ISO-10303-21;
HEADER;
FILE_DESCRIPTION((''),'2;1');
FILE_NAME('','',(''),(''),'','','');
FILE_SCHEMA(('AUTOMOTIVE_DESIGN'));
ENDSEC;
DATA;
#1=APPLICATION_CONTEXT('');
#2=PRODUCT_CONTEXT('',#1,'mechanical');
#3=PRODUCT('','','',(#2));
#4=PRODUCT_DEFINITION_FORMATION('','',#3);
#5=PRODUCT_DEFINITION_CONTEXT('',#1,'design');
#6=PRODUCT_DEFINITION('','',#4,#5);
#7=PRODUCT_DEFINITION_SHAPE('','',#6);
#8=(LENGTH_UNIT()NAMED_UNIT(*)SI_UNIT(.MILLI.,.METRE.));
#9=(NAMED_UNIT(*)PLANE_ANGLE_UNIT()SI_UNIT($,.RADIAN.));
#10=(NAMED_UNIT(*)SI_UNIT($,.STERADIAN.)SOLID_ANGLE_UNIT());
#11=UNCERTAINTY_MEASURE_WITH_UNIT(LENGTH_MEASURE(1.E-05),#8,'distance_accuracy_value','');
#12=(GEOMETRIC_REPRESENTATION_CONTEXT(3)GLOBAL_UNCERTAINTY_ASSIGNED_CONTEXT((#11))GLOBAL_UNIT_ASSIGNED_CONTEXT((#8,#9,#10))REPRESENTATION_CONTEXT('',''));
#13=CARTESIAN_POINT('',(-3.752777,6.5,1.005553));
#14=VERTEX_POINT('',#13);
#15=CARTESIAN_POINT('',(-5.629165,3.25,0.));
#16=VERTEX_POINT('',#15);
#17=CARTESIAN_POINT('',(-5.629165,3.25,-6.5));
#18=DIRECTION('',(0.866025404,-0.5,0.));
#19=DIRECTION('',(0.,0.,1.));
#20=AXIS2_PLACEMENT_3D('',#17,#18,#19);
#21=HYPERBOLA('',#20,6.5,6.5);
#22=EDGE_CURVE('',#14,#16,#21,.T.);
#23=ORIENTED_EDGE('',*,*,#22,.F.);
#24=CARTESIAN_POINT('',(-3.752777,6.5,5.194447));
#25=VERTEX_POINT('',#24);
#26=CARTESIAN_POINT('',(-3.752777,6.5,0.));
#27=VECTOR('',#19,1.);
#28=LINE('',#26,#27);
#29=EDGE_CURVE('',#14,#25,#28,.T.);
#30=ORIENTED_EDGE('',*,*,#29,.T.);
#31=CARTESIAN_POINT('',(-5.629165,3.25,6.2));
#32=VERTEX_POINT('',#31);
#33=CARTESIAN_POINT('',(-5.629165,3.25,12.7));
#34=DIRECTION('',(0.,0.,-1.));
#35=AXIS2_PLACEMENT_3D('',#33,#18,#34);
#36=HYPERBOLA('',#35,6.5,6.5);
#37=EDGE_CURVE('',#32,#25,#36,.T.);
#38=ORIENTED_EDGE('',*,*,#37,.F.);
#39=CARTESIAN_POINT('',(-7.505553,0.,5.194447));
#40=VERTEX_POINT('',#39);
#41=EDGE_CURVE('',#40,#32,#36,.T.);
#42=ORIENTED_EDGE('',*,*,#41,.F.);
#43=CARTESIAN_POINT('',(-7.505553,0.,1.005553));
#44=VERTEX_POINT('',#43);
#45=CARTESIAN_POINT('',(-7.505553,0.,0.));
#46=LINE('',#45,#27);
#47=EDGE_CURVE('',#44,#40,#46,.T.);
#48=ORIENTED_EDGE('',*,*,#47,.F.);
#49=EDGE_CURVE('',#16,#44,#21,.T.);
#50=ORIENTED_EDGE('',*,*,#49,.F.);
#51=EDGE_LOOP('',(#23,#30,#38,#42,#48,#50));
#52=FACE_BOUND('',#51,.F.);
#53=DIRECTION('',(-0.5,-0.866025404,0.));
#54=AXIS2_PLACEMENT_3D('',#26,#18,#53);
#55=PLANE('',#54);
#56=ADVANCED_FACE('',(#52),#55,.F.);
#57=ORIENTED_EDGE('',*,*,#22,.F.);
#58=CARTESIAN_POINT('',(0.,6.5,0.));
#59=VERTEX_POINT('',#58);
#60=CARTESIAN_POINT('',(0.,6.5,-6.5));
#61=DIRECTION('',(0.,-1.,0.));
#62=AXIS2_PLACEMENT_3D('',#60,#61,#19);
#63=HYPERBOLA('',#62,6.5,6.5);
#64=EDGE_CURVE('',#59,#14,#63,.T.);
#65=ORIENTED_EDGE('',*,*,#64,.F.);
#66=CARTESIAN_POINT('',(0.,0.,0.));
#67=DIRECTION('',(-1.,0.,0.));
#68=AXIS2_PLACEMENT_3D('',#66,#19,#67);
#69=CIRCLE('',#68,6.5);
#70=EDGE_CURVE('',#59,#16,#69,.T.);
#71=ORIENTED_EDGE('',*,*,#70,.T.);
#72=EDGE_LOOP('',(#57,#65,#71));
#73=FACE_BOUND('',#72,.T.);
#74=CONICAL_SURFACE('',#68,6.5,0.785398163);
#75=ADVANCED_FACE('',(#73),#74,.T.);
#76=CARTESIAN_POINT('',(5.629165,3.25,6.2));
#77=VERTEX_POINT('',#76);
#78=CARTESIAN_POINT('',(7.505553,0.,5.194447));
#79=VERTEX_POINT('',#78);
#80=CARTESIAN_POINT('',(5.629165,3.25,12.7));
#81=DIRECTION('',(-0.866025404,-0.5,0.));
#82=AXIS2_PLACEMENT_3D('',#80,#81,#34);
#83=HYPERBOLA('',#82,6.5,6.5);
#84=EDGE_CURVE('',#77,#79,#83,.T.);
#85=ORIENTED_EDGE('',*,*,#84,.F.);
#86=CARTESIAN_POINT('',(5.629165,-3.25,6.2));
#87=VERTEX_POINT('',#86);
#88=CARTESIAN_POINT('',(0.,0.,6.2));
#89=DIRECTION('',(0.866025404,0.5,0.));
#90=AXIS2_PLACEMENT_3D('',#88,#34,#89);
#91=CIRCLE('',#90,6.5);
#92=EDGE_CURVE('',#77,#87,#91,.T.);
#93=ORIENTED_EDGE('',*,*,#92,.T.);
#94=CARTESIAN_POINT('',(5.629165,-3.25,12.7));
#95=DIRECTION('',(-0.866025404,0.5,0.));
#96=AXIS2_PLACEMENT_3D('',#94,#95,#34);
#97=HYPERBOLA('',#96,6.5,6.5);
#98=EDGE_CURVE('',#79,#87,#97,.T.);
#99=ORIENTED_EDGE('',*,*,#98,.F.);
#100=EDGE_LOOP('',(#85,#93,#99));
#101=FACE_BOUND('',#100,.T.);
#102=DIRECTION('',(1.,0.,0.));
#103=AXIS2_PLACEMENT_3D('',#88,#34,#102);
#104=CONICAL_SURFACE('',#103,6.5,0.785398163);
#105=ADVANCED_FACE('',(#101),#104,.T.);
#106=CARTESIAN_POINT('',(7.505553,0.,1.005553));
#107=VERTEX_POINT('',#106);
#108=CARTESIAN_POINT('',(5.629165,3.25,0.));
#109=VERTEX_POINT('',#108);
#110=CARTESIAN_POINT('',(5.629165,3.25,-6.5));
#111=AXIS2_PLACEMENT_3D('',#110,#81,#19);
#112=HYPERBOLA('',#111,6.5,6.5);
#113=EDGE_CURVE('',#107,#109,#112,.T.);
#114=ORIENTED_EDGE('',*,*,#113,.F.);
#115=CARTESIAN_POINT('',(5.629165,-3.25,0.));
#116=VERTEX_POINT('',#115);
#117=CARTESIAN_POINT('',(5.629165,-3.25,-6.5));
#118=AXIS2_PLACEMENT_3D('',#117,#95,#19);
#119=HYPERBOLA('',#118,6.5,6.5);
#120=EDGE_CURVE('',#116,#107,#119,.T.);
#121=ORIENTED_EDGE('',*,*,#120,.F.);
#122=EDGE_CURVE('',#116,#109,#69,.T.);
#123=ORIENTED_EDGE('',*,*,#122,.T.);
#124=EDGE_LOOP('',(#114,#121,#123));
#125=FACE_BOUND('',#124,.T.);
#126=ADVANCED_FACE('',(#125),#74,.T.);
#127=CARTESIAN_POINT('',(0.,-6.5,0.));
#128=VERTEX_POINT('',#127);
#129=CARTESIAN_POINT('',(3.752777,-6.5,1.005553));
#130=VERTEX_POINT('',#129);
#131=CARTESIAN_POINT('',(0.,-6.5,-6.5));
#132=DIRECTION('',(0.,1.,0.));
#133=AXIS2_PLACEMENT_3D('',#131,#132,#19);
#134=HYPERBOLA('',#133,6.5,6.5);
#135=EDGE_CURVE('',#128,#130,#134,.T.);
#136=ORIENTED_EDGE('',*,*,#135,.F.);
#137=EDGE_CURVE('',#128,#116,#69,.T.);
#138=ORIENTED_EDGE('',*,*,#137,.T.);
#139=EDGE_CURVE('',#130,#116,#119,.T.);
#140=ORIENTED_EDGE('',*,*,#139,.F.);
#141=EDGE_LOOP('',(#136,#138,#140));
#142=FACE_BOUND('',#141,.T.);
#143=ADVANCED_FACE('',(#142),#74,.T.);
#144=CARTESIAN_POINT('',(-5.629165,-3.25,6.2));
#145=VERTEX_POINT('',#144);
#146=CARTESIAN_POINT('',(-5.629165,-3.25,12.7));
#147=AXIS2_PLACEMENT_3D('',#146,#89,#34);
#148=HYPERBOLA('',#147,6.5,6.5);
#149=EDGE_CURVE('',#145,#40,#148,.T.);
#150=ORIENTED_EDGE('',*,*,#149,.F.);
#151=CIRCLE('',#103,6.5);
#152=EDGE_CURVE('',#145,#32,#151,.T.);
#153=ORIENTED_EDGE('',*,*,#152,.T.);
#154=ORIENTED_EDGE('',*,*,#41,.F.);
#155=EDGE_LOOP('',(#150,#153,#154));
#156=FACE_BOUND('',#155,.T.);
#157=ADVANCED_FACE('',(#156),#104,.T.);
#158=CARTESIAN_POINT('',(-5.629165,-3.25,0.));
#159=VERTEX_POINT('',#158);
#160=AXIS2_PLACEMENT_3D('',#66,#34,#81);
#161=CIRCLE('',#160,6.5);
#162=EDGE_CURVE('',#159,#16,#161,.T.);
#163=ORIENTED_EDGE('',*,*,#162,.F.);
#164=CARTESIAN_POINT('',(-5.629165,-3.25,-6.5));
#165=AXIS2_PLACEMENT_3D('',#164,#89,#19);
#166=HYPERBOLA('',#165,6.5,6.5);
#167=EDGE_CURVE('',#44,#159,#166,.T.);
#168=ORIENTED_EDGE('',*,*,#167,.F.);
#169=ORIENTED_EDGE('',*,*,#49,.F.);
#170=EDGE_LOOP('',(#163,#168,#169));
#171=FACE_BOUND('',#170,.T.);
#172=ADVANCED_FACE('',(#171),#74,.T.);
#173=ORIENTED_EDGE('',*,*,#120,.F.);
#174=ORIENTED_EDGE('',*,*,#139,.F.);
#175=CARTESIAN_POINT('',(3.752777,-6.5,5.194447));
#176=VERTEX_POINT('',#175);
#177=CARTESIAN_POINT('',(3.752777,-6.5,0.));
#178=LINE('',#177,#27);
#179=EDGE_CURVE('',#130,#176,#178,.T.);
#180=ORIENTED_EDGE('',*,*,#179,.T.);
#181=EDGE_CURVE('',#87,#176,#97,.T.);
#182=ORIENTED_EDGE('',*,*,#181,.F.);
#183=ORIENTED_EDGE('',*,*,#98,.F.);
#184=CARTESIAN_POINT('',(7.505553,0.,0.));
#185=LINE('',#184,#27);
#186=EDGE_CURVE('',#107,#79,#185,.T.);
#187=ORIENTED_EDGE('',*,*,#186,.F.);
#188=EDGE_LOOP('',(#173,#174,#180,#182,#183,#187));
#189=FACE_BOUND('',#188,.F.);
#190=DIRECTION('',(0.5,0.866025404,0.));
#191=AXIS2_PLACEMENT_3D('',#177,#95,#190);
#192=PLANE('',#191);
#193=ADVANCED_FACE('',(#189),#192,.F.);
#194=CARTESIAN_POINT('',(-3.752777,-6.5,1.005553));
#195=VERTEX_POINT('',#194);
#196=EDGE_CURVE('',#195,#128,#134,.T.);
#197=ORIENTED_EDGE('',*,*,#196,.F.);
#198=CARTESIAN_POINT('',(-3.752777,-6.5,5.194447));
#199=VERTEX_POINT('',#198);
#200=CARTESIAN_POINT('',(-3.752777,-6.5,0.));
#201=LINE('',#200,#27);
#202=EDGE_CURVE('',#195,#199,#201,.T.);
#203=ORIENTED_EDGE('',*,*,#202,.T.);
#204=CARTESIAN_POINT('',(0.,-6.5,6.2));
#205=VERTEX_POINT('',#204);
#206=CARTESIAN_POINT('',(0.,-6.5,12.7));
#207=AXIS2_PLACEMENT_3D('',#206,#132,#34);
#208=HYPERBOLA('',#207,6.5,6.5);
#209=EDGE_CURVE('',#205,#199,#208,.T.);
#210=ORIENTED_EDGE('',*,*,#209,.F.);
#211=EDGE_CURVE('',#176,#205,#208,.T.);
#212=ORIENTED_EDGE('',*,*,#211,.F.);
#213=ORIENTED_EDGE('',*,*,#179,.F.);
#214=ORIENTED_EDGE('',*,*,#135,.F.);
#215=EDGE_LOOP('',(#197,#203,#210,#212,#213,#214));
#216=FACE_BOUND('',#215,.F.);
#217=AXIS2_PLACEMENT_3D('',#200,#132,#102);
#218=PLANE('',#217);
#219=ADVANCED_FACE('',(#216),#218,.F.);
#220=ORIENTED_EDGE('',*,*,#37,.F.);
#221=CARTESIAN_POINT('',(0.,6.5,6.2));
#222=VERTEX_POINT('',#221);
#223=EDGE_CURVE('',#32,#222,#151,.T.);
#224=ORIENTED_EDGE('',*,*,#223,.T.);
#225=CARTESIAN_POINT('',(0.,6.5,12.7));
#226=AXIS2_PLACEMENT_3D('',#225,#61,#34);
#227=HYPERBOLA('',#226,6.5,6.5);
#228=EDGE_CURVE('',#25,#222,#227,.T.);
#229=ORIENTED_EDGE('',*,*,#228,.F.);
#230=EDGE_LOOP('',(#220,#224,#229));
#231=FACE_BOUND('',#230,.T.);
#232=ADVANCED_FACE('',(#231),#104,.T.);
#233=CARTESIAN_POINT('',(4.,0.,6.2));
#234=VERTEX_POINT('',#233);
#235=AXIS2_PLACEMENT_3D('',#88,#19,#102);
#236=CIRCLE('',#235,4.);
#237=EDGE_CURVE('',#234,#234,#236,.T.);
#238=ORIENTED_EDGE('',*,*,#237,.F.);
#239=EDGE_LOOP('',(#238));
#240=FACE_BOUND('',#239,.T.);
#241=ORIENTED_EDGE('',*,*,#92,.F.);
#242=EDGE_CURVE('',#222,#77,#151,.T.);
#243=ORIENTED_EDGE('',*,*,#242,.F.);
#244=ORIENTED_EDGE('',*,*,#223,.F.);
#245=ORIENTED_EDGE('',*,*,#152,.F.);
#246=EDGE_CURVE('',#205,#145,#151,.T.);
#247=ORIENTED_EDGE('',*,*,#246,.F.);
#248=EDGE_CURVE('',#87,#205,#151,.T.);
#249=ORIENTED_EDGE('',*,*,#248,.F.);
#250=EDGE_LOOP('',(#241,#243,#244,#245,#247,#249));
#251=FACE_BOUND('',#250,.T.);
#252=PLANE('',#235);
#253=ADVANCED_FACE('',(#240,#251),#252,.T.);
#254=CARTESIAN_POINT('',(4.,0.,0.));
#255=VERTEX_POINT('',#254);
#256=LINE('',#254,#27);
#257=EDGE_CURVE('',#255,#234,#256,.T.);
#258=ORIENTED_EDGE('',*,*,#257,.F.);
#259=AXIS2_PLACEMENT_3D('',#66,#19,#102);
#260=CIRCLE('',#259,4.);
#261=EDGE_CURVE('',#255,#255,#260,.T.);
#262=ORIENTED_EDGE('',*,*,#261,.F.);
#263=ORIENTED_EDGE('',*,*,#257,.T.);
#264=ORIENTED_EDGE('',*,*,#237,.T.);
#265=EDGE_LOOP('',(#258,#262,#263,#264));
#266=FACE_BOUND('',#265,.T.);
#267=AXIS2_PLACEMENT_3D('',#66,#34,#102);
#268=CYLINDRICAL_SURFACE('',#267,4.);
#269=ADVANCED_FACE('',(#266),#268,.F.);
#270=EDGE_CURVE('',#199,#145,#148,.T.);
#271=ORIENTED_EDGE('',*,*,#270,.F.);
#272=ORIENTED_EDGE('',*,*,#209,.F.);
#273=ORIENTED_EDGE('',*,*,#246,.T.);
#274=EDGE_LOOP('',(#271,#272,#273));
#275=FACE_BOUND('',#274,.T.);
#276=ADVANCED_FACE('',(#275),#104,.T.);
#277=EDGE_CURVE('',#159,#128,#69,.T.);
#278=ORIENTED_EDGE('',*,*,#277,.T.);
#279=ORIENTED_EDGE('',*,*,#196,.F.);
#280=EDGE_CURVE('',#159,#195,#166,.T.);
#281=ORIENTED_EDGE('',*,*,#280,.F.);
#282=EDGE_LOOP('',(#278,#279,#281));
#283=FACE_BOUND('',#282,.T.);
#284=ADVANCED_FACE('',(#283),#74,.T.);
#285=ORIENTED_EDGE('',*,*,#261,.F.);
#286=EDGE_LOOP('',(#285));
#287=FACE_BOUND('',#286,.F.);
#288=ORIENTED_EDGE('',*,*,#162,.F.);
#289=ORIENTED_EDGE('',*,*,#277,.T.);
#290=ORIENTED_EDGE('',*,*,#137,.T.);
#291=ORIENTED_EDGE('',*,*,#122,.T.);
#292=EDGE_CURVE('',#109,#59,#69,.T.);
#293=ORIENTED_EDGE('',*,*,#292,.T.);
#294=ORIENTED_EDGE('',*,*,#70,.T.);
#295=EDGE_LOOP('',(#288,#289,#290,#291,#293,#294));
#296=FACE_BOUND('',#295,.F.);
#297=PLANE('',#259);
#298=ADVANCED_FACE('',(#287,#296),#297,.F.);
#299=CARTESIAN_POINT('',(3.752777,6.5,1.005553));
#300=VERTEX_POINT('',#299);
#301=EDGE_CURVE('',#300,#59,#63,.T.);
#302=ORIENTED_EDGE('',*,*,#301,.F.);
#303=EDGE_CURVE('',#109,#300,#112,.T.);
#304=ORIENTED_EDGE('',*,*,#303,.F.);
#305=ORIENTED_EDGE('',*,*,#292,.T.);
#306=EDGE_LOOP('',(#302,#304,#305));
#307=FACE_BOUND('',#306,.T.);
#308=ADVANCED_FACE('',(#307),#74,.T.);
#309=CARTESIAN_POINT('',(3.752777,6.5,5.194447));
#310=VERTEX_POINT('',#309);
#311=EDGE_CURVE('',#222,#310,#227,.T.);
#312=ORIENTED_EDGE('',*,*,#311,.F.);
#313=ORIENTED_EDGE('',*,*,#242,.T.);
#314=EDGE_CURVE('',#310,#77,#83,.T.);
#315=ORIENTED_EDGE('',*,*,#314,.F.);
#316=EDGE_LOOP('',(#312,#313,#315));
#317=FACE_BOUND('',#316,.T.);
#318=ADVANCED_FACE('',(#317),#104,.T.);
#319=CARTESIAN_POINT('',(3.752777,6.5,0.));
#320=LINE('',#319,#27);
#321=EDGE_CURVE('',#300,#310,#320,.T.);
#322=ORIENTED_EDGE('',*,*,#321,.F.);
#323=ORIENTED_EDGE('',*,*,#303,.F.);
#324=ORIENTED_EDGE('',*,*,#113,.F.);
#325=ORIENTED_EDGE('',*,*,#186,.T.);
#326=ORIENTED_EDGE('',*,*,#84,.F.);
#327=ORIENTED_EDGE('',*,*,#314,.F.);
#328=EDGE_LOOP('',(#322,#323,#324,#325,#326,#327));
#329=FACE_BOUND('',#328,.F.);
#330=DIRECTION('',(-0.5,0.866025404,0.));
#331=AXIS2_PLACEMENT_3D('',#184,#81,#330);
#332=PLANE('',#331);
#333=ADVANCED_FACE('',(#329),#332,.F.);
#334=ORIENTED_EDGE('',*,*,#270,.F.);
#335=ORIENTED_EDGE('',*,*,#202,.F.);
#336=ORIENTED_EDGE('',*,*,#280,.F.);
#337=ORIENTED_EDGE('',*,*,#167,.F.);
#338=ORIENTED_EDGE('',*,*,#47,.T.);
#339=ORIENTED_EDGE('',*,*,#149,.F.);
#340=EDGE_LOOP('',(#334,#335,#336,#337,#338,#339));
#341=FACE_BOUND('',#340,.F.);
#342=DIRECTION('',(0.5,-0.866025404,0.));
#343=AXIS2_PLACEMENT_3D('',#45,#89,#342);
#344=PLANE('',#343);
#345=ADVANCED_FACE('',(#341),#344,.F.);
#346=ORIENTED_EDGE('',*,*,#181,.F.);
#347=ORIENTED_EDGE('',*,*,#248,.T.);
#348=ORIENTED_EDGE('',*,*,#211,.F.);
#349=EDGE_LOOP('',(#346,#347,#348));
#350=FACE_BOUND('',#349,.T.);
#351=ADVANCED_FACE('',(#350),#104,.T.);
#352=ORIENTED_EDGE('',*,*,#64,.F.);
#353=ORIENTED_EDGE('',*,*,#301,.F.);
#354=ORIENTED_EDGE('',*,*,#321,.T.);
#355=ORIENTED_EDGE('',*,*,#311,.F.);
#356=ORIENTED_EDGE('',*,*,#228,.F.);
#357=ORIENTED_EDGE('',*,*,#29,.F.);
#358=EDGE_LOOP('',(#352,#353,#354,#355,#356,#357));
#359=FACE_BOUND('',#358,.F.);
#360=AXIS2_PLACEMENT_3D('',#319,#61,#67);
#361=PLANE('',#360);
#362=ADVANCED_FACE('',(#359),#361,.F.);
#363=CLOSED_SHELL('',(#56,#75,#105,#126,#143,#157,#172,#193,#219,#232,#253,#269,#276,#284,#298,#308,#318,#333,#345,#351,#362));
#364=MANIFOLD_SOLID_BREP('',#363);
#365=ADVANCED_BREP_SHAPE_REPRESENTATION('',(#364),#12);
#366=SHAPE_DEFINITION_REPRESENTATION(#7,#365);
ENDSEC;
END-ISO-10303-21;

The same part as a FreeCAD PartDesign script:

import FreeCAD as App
import Part
import Sketcher
Q = App.Units.Quantity


def add_polygon(sketch, points):
    """Adds a closed chain of lines whose ends are joined by coincident constraints."""
    first, n = sketch.GeometryCount, len(points)
    for a, b in zip(points, points[1:] + points[:1]):
        sketch.addGeometry(Part.LineSegment(App.Vector(*a, 0), App.Vector(*b, 0)), False)
    for i in range(n):
        sketch.addConstraint(Sketcher.Constraint("Coincident", first + i, 2, first + (i + 1) % n, 1))

doc = App.newDocument("Part")
body = doc.addObject("PartDesign::Body", "Body")

# Sketch on XY plane
sketch1 = body.newObject("Sketcher::SketchObject", "Sketch")
sketch1.AttachmentSupport = (doc.getObject("XY_Plane"), [""])
sketch1.MapMode = "FlatFace"
add_polygon(sketch1, [(3.8, -6.5), (7.5, 0), (3.8, 6.5), (-3.8, 6.5), (-7.5, 0), (-3.8, -6.5)])  # lines 0-5
sketch1.addGeometry(Part.Circle(App.Vector(0, 0, 0), App.Vector(0, 0, 1), 4), False)  # 6
sketch1.addConstraint([
    Sketcher.Constraint("Horizontal", 2),
    Sketcher.Constraint("Horizontal", 5),
    Sketcher.Constraint("Coincident", 6, 3, -1, 1),
    Sketcher.Constraint("Symmetric", 0, 2, 3, 2, -1, 1),
    Sketcher.Constraint("Symmetric", 1, 2, 4, 2, -1, 1),
    Sketcher.Constraint("PointOnObject", 0, 2, -1),
    Sketcher.Constraint("Parallel", 0, 3),
    Sketcher.Constraint("Vertical", 2, 2, 4, 2),
    Sketcher.Constraint("Diameter", 6, 8.0),
    Sketcher.Constraint("Angle", 0, Q("60 deg")),
    Sketcher.Constraint("DistanceY", 4, 2, 2, 2, 13.0),
    Sketcher.Constraint("DistanceX", 2, 2, 2, 1, 7.505554),
])
pad1 = body.newObject("PartDesign::Pad", "Pad")
pad1.Profile = sketch1
pad1.Length = 6.2

# Sketch on XY plane
sketch2 = body.newObject("Sketcher::SketchObject", "Sketch001")
sketch2.AttachmentSupport = (doc.getObject("XY_Plane"), [""])
sketch2.MapMode = "FlatFace"
sketch2.AttachmentOffset = App.Placement(App.Vector(0, 0, 6.2), App.Rotation())
add_polygon(sketch2, [(-17, 16), (-17, -16), (17, -16), (17, 16)])  # lines 0-3
sketch2.addGeometry(Part.Circle(App.Vector(0, 0, 0), App.Vector(0, 0, 1), 6), False)  # 4
sketch2.addConstraint([
    Sketcher.Constraint("Vertical", 0),
    Sketcher.Constraint("Horizontal", 1),
    Sketcher.Constraint("Vertical", 2),
    Sketcher.Constraint("Horizontal", 3),
    Sketcher.Constraint("Coincident", 4, 3, -1, 1),
    Sketcher.Constraint("Symmetric", 0, 2, 2, 2, -1, 1),
    Sketcher.Constraint("Diameter", 4, 13.0),
    Sketcher.Constraint("DistanceY", 0, 2, 0, 1, 31.56),
    Sketcher.Constraint("DistanceX", 1, 1, 1, 2, 33.572),
])
pocket1 = body.newObject("PartDesign::Pocket", "Pocket")
pocket1.Profile = sketch2
pocket1.Length = 6.2
pocket1.TaperAngle = 45

# Sketch on XY plane
sketch3 = body.newObject("Sketcher::SketchObject", "Sketch002")
sketch3.AttachmentSupport = (doc.getObject("XY_Plane"), [""])
sketch3.MapMode = "FlatFace"
add_polygon(sketch3, [(17, 16), (17, -16), (-17, -16), (-17, 16)])  # lines 0-3
sketch3.addGeometry(Part.Circle(App.Vector(0, 0, 0), App.Vector(0, 0, 1), 6), False)  # 4
sketch3.addConstraint([
    Sketcher.Constraint("Vertical", 0),
    Sketcher.Constraint("Horizontal", 1),
    Sketcher.Constraint("Vertical", 2),
    Sketcher.Constraint("Horizontal", 3),
    Sketcher.Constraint("Coincident", 4, 3, -1, 1),
    Sketcher.Constraint("Symmetric", 0, 2, 2, 2, -1, 1),
    Sketcher.Constraint("Diameter", 4, 13.0),
    Sketcher.Constraint("DistanceY", 0, 2, 0, 1, 31.56),
    Sketcher.Constraint("DistanceX", 1, 2, 1, 1, 33.572),
])
pocket2 = body.newObject("PartDesign::Pocket", "Pocket001")
pocket2.Profile = sketch3
pocket2.Length = 6.2
pocket2.Reversed = True
pocket2.TaperAngle = 45

doc.recompute()
